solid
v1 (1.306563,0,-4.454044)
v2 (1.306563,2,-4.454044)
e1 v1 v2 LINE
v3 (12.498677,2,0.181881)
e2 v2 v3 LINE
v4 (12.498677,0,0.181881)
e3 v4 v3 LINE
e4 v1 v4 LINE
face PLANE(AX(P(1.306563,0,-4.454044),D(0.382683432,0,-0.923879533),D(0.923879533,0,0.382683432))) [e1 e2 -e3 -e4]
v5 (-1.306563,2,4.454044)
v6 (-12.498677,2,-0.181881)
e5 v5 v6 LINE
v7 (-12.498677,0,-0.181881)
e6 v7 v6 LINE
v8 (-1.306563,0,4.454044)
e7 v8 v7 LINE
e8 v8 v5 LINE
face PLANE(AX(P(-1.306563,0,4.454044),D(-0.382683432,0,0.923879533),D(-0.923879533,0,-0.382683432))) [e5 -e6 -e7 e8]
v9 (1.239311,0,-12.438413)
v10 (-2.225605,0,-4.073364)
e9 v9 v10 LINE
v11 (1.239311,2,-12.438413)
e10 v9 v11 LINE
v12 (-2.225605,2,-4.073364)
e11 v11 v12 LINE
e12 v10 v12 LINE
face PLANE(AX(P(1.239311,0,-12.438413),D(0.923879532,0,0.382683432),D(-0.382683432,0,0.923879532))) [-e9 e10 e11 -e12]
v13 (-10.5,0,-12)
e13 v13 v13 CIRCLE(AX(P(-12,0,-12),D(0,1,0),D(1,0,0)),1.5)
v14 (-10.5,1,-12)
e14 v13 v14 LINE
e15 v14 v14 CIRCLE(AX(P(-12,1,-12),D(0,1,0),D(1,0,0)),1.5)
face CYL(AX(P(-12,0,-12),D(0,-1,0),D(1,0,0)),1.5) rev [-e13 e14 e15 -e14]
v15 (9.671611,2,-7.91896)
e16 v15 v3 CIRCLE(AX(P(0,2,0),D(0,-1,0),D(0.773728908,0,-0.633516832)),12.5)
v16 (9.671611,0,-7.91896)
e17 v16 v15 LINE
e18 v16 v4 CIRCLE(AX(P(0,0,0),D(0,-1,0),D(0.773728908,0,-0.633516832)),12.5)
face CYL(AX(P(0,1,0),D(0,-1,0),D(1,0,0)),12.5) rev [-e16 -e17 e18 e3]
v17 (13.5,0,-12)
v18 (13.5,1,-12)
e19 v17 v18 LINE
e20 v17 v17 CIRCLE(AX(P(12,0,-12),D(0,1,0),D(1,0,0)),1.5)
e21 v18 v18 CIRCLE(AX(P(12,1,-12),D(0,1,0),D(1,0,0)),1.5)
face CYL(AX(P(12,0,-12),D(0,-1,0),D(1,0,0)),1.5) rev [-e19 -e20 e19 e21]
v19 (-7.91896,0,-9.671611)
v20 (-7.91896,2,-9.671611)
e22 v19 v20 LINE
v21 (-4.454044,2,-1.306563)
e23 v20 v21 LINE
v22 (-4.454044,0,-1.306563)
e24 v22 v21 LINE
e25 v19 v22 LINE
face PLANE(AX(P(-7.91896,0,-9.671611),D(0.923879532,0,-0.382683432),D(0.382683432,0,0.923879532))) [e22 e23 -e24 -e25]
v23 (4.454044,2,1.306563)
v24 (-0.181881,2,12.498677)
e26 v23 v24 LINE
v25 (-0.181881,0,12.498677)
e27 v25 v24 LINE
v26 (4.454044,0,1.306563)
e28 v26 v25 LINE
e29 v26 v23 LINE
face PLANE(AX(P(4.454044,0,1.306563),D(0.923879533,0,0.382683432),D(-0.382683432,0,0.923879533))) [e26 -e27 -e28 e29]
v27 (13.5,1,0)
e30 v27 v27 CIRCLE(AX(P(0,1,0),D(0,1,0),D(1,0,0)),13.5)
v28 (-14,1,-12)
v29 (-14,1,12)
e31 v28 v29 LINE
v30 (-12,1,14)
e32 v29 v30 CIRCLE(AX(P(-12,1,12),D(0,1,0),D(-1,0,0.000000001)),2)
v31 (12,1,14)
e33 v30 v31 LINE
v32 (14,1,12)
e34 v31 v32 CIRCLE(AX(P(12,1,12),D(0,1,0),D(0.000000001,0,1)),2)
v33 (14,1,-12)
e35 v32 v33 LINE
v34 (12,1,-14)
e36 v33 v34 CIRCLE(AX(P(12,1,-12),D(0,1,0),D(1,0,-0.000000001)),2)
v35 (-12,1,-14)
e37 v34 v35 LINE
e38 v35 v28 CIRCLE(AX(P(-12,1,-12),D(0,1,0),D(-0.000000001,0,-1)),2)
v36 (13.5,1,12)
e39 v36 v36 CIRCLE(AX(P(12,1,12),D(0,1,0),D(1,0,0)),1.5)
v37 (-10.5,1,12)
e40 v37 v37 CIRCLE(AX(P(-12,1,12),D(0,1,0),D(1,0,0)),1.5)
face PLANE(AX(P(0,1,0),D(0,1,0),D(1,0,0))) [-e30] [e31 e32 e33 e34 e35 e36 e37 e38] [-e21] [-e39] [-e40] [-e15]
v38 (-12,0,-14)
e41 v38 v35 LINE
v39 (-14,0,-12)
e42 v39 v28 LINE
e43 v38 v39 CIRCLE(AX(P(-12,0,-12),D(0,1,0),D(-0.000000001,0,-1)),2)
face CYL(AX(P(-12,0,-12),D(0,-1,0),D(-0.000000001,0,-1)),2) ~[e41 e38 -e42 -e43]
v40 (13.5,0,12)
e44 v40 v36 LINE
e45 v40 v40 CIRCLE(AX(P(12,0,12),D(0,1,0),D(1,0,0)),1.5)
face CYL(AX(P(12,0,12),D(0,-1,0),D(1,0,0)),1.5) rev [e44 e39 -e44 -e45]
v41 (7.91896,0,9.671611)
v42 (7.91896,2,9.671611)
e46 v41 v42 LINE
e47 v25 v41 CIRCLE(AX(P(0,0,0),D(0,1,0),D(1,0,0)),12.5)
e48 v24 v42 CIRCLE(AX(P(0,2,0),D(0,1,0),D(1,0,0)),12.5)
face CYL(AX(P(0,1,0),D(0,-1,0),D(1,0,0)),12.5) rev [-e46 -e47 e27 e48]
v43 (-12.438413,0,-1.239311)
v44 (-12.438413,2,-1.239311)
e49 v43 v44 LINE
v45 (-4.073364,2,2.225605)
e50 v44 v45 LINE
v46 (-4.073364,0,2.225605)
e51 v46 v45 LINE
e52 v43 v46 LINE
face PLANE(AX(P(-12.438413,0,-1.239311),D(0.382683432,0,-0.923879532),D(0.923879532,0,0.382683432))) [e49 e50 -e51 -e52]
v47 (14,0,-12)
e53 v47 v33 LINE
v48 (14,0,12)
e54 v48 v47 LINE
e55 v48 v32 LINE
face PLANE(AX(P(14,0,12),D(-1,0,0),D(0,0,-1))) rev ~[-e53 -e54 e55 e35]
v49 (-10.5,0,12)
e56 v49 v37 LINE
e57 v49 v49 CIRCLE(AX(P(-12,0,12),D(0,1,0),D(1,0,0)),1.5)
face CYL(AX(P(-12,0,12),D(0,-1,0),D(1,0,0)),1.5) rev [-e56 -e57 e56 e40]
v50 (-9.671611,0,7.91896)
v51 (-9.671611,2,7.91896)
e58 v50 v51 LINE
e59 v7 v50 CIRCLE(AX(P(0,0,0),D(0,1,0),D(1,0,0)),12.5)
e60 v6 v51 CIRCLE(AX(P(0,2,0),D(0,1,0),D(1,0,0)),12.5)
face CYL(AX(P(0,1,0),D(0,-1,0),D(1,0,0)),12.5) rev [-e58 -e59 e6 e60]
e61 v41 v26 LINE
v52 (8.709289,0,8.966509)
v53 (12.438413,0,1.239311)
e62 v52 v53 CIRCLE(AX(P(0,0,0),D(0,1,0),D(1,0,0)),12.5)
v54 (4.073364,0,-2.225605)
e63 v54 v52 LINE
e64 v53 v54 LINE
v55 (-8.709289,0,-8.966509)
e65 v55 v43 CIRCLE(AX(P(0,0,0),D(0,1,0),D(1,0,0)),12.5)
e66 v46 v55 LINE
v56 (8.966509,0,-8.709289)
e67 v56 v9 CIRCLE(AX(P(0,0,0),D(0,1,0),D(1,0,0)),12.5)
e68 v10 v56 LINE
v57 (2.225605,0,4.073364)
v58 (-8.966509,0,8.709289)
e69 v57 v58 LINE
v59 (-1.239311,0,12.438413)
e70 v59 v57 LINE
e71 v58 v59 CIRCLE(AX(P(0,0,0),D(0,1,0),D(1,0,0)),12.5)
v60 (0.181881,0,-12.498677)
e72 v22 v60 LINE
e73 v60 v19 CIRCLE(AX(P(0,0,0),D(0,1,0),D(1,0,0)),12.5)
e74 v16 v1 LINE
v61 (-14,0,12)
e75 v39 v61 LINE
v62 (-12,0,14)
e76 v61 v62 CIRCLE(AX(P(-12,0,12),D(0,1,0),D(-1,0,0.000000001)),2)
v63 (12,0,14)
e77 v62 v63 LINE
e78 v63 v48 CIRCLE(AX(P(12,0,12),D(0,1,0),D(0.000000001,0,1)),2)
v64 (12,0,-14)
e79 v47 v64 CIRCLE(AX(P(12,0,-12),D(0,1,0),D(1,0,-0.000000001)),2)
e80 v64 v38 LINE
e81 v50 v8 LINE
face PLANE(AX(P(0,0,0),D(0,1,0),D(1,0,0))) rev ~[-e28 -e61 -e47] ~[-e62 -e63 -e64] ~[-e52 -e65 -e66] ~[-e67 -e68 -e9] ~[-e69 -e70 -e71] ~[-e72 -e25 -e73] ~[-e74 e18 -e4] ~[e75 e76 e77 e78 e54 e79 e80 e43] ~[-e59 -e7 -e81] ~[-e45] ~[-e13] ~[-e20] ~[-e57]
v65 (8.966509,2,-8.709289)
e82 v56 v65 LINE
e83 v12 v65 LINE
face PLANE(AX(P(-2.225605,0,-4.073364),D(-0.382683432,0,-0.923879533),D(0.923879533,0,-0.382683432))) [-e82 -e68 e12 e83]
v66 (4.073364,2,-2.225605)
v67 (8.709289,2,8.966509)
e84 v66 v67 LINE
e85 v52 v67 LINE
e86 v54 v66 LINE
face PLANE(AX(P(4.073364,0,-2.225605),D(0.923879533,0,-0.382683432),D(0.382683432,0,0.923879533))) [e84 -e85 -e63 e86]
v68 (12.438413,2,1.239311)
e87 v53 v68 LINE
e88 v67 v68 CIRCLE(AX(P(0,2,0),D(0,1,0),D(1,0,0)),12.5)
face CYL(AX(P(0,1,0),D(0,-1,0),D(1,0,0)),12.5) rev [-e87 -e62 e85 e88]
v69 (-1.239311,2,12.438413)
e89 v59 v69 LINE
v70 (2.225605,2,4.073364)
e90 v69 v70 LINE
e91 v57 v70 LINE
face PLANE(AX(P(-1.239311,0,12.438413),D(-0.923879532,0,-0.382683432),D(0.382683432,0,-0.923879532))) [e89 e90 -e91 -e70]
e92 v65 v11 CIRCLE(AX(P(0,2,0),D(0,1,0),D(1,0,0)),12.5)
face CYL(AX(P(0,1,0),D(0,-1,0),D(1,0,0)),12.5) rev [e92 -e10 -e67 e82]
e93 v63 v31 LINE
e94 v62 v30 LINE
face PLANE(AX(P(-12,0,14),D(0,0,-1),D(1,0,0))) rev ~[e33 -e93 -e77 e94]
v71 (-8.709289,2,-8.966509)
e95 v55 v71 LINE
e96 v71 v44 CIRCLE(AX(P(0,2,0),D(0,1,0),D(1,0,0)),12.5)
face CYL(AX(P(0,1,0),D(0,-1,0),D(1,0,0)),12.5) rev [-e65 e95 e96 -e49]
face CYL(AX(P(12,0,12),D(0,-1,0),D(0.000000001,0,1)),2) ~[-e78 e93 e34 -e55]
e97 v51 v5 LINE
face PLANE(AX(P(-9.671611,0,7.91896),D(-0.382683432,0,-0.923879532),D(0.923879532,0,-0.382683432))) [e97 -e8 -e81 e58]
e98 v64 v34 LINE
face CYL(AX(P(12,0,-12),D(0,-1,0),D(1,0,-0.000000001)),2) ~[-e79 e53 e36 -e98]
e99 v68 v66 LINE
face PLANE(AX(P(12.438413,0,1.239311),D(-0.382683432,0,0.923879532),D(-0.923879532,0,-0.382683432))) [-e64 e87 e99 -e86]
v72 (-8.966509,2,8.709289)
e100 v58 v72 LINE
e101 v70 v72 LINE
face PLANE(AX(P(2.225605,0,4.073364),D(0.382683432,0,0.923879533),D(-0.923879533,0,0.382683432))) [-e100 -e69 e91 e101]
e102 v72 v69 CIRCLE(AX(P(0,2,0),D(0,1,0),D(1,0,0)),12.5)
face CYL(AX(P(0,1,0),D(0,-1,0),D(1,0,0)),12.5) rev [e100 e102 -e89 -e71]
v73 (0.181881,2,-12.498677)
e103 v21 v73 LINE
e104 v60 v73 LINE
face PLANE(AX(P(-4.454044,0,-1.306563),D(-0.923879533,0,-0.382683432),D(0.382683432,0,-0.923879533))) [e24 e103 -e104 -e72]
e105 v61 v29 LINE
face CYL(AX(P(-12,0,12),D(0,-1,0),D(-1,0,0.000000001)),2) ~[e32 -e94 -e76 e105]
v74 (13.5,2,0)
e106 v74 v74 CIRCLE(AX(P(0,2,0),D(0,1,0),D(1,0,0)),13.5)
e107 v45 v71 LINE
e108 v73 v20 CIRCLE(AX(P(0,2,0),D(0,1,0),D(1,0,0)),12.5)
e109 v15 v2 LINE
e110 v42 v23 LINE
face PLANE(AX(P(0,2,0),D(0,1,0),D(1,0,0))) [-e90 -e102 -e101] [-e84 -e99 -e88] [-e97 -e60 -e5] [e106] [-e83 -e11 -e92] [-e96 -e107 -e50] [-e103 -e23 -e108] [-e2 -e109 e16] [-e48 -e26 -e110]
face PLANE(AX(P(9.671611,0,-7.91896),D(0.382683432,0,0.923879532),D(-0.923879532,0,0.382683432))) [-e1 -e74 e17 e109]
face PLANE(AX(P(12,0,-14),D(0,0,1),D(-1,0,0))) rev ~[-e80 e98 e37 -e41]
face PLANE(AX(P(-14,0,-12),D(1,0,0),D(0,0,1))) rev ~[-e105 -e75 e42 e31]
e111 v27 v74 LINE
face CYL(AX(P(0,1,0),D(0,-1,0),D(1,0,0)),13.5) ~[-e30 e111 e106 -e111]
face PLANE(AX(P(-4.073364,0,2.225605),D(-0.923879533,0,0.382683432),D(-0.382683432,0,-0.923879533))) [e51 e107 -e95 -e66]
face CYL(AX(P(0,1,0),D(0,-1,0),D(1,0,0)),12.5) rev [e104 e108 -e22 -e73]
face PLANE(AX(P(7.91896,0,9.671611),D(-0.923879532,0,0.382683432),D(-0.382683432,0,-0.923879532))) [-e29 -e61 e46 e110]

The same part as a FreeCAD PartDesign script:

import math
import FreeCAD as App
import Part
import Sketcher
Q = App.Units.Quantity

doc = App.newDocument("Part")
body = doc.addObject("PartDesign::Body", "Body")

# Sketch on XZ plane
sketch1 = doc.addObject("Sketcher::SketchObject", "Sketch")
body.addObject(sketch1)
sketch1.AttachmentSupport = (doc.XZ_Plane, [""])
sketch1.MapMode = "FlatFace"
sketch1.addGeometry(Part.LineSegment(App.Vector(-12, 14, 0), App.Vector(12, 14, 0)), False)
sketch1.addGeometry(Part.ArcOfCircle(Part.Circle(App.Vector(12, 12, 0), App.Vector(0, 0, 1), 2), math.radians(0), math.radians(90)), False)
sketch1.addGeometry(Part.LineSegment(App.Vector(14, 12, 0), App.Vector(14, -12, 0)), False)
sketch1.addGeometry(Part.ArcOfCircle(Part.Circle(App.Vector(12, -12, 0), App.Vector(0, 0, 1), 2), math.radians(-90), math.radians(0)), False)
sketch1.addGeometry(Part.LineSegment(App.Vector(12, -14, 0), App.Vector(-12, -14, 0)), False)
sketch1.addGeometry(Part.ArcOfCircle(Part.Circle(App.Vector(-12, -12, 0), App.Vector(0, 0, 1), 2), math.radians(-180), math.radians(-90)), False)
sketch1.addGeometry(Part.LineSegment(App.Vector(-14, -12, 0), App.Vector(-14, 12, 0)), False)
sketch1.addGeometry(Part.ArcOfCircle(Part.Circle(App.Vector(-12, 12, 0), App.Vector(0, 0, 1), 2), math.radians(90), math.radians(180)), False)
sketch1.addGeometry(Part.Circle(App.Vector(-12, 12, 0), App.Vector(0, 0, 1), 1.5), False)
sketch1.addGeometry(Part.Circle(App.Vector(12, 12, 0), App.Vector(0, 0, 1), 1.5), False)
sketch1.addGeometry(Part.Circle(App.Vector(-12, -12, 0), App.Vector(0, 0, 1), 1.5), False)
sketch1.addGeometry(Part.Circle(App.Vector(0, 0, 0), App.Vector(0, 0, 1), 12.5), False)
sketch1.addGeometry(Part.Circle(App.Vector(12, -12, 0), App.Vector(0, 0, 1), 1.5), False)
sketch1.addConstraint(Sketcher.Constraint("Tangent", 0, 2, 1, 2))
sketch1.addConstraint(Sketcher.Constraint("Tangent", 1, 1, 2, 1))
sketch1.addConstraint(Sketcher.Constraint("Tangent", 2, 2, 3, 2))
sketch1.addConstraint(Sketcher.Constraint("Tangent", 3, 1, 4, 1))
sketch1.addConstraint(Sketcher.Constraint("Tangent", 4, 2, 5, 2))
sketch1.addConstraint(Sketcher.Constraint("Tangent", 5, 1, 6, 1))
sketch1.addConstraint(Sketcher.Constraint("Tangent", 6, 2, 7, 2))
sketch1.addConstraint(Sketcher.Constraint("Tangent", 7, 1, 0, 1))
sketch1.addConstraint(Sketcher.Constraint("Horizontal", 0))
sketch1.addConstraint(Sketcher.Constraint("Vertical", 2))
sketch1.addConstraint(Sketcher.Constraint("Horizontal", 4))
sketch1.addConstraint(Sketcher.Constraint("Vertical", 6))
sketch1.addConstraint(Sketcher.Constraint("Coincident", 11, 3, -1, 1))
sketch1.addConstraint(Sketcher.Constraint("Coincident", 8, 3, 7, 3))
sketch1.addConstraint(Sketcher.Constraint("Coincident", 9, 3, 1, 3))
sketch1.addConstraint(Sketcher.Constraint("Coincident", 10, 3, 5, 3))
sketch1.addConstraint(Sketcher.Constraint("Coincident", 12, 3, 3, 3))
sketch1.addConstraint(Sketcher.Constraint("Equal", 1, 3))
sketch1.addConstraint(Sketcher.Constraint("Equal", 3, 5))
sketch1.addConstraint(Sketcher.Constraint("Equal", 5, 7))
sketch1.addConstraint(Sketcher.Constraint("Equal", 8, 9))
sketch1.addConstraint(Sketcher.Constraint("Equal", 9, 10))
sketch1.addConstraint(Sketcher.Constraint("Equal", 10, 12))
sketch1.addConstraint(Sketcher.Constraint("Symmetric", 1, 3, 5, 3, -1, 1))
sketch1.addConstraint(Sketcher.Constraint("Equal", 4, 2))
sketch1.addConstraint(Sketcher.Constraint("Diameter", 8, 3.0))
sketch1.addConstraint(Sketcher.Constraint("Diameter", 11, 25.0))
sketch1.addConstraint(Sketcher.Constraint("Radius", 1, 2.0))
sketch1.addConstraint(Sketcher.Constraint("DistanceX", 0, 1, 0, 2, 24.0))
pad1 = doc.addObject("PartDesign::Pad", "Pad")
body.addObject(pad1)
pad1.Profile = sketch1
pad1.Length = 1
pad1.Reversed = True

# Sketch on XZ plane
sketch2 = doc.addObject("Sketcher::SketchObject", "Sketch001")
body.addObject(sketch2)
sketch2.AttachmentSupport = (doc.XZ_Plane, [""])
sketch2.MapMode = "FlatFace"
sketch2.AttachmentOffset = App.Placement(App.Vector(0, 0, -1), App.Rotation())
sketch2.addGeometry(Part.Circle(App.Vector(0, 0, 0), App.Vector(0, 0, 1), 14), False)
sketch2.addGeometry(Part.Circle(App.Vector(0, 0, 0), App.Vector(0, 0, 1), 12), False)
sketch2.addConstraint(Sketcher.Constraint("Coincident", 0, 3, -1, 1))
sketch2.addConstraint(Sketcher.Constraint("Coincident", 1, 3, -1, 1))
sketch2.addConstraint(Sketcher.Constraint("Diameter", 0, 27.0))
sketch2.addConstraint(Sketcher.Constraint("Diameter", 1, 25.0))
pad2 = doc.addObject("PartDesign::Pad", "Pad001")
body.addObject(pad2)
pad2.Profile = sketch2
pad2.Length = 1
pad2.Reversed = True

# Sketch on XZ plane
sketch3 = doc.addObject("Sketcher::SketchObject", "Sketch002")
body.addObject(sketch3)
sketch3.AttachmentSupport = (doc.XZ_Plane, [""])
sketch3.MapMode = "FlatFace"
sketch3.addGeometry(Part.LineSegment(App.Vector(0.2, -12.5, 0), App.Vector(-4.5, -1.3, 0)), False)
sketch3.addGeometry(Part.LineSegment(App.Vector(-4.5, -1.3, 0), App.Vector(-7.9, -9.7, 0)), False)
sketch3.addGeometry(Part.ArcOfCircle(Part.Circle(App.Vector(0, 0, 0), App.Vector(0, 0, 1), 12.5), math.radians(-134.17), math.radians(-129.31)), False)
sketch3.addGeometry(Part.LineSegment(App.Vector(-8.7, -9, 0), App.Vector(-4.1, 2.2, 0)), False)
sketch3.addGeometry(Part.LineSegment(App.Vector(-4.1, 2.2, 0), App.Vector(-12.4, -1.2, 0)), False)
sketch3.addGeometry(Part.ArcOfCircle(Part.Circle(App.Vector(0, 0, 0), App.Vector(0, 0, 1), 12.5), math.radians(-179.17), math.radians(-174.31)), False)
sketch3.addGeometry(Part.LineSegment(App.Vector(-12.5, -0.2, 0), App.Vector(-1.3, 4.5, 0)), False)
sketch3.addGeometry(Part.LineSegment(App.Vector(-1.3, 4.5, 0), App.Vector(-9.7, 7.9, 0)), False)
sketch3.addGeometry(Part.ArcOfCircle(Part.Circle(App.Vector(0, 0, 0), App.Vector(0, 0, 1), 12.5), math.radians(135.83), math.radians(140.69)), False)
sketch3.addGeometry(Part.LineSegment(App.Vector(-9, 8.7, 0), App.Vector(2.2, 4.1, 0)), False)
sketch3.addGeometry(Part.LineSegment(App.Vector(2.2, 4.1, 0), App.Vector(-1.2, 12.4, 0)), False)
sketch3.addGeometry(Part.ArcOfCircle(Part.Circle(App.Vector(0, 0, 0), App.Vector(0, 0, 1), 12.5), math.radians(90.83), math.radians(95.69)), False)
sketch3.addGeometry(Part.LineSegment(App.Vector(-0.2, 12.5, 0), App.Vector(4.5, 1.3, 0)), False)
sketch3.addGeometry(Part.LineSegment(App.Vector(4.5, 1.3, 0), App.Vector(7.9, 9.7, 0)), False)
sketch3.addGeometry(Part.ArcOfCircle(Part.Circle(App.Vector(0, 0, 0), App.Vector(0, 0, 1), 12.5), math.radians(45.83), math.radians(50.69)), False)
sketch3.addGeometry(Part.LineSegment(App.Vector(8.7, 9, 0), App.Vector(4.1, -2.2, 0)), False)
sketch3.addGeometry(Part.LineSegment(App.Vector(4.1, -2.2, 0), App.Vector(12.4, 1.2, 0)), False)
sketch3.addGeometry(Part.ArcOfCircle(Part.Circle(App.Vector(0, 0, 0), App.Vector(0, 0, 1), 12.5), math.radians(0.83), math.radians(5.69)), False)
sketch3.addGeometry(Part.LineSegment(App.Vector(12.5, 0.2, 0), App.Vector(1.3, -4.5, 0)), False)
sketch3.addGeometry(Part.LineSegment(App.Vector(1.3, -4.5, 0), App.Vector(9.7, -7.9, 0)), False)
sketch3.addGeometry(Part.ArcOfCircle(Part.Circle(App.Vector(0, 0, 0), App.Vector(0, 0, 1), 12.5), math.radians(-44.17), math.radians(-39.31)), False)
sketch3.addGeometry(Part.LineSegment(App.Vector(9, -8.7, 0), App.Vector(-2.2, -4.1, 0)), False)
sketch3.addGeometry(Part.LineSegment(App.Vector(-2.2, -4.1, 0), App.Vector(1.2, -12.4, 0)), False)
sketch3.addGeometry(Part.ArcOfCircle(Part.Circle(App.Vector(0, 0, 0), App.Vector(0, 0, 1), 12.5), math.radians(-89.17), math.radians(-84.31)), False)
sketch3.addConstraint(Sketcher.Constraint("Coincident", 0, 2, 1, 1))
sketch3.addConstraint(Sketcher.Constraint("Coincident", 1, 2, 2, 2))
sketch3.addConstraint(Sketcher.Constraint("Coincident", 2, 1, 3, 1))
sketch3.addConstraint(Sketcher.Constraint("Coincident", 3, 2, 4, 1))
sketch3.addConstraint(Sketcher.Constraint("Coincident", 4, 2, 5, 2))
sketch3.addConstraint(Sketcher.Constraint("Coincident", 5, 1, 6, 1))
sketch3.addConstraint(Sketcher.Constraint("Coincident", 6, 2, 7, 1))
sketch3.addConstraint(Sketcher.Constraint("Coincident", 7, 2, 8, 2))
sketch3.addConstraint(Sketcher.Constraint("Coincident", 8, 1, 9, 1))
sketch3.addConstraint(Sketcher.Constraint("Coincident", 9, 2, 10, 1))
sketch3.addConstraint(Sketcher.Constraint("Coincident", 10, 2, 11, 2))
sketch3.addConstraint(Sketcher.Constraint("Coincident", 11, 1, 12, 1))
sketch3.addConstraint(Sketcher.Constraint("Coincident", 12, 2, 13, 1))
sketch3.addConstraint(Sketcher.Constraint("Coincident", 13, 2, 14, 2))
sketch3.addConstraint(Sketcher.Constraint("Coincident", 14, 1, 15, 1))
sketch3.addConstraint(Sketcher.Constraint("Coincident", 15, 2, 16, 1))
sketch3.addConstraint(Sketcher.Constraint("Coincident", 16, 2, 17, 2))
sketch3.addConstraint(Sketcher.Constraint("Coincident", 17, 1, 18, 1))
sketch3.addConstraint(Sketcher.Constraint("Coincident", 18, 2, 19, 1))
sketch3.addConstraint(Sketcher.Constraint("Coincident", 19, 2, 20, 2))
sketch3.addConstraint(Sketcher.Constraint("Coincident", 20, 1, 21, 1))
sketch3.addConstraint(Sketcher.Constraint("Coincident", 21, 2, 22, 1))
sketch3.addConstraint(Sketcher.Constraint("Coincident", 22, 2, 23, 2))
sketch3.addConstraint(Sketcher.Constraint("Coincident", 23, 1, 0, 1))
sketch3.addConstraint(Sketcher.Constraint("Coincident", 2, 3, -1, 1))
sketch3.addConstraint(Sketcher.Constraint("Coincident", 5, 3, -1, 1))
sketch3.addConstraint(Sketcher.Constraint("Coincident", 8, 3, -1, 1))
sketch3.addConstraint(Sketcher.Constraint("Coincident", 11, 3, -1, 1))
sketch3.addConstraint(Sketcher.Constraint("Coincident", 14, 3, -1, 1))
sketch3.addConstraint(Sketcher.Constraint("Coincident", 17, 3, -1, 1))
sketch3.addConstraint(Sketcher.Constraint("Coincident", 20, 3, -1, 1))
sketch3.addConstraint(Sketcher.Constraint("Coincident", 23, 3, -1, 1))
sketch3.addConstraint(Sketcher.Constraint("Equal", 2, 5))
sketch3.addConstraint(Sketcher.Constraint("Equal", 5, 8))
sketch3.addConstraint(Sketcher.Constraint("Equal", 8, 11))
sketch3.addConstraint(Sketcher.Constraint("Equal", 11, 14))
sketch3.addConstraint(Sketcher.Constraint("Equal", 14, 17))
sketch3.addConstraint(Sketcher.Constraint("Equal", 17, 20))
sketch3.addConstraint(Sketcher.Constraint("Equal", 20, 23))
sketch3.addConstraint(Sketcher.Constraint("Symmetric", 0, 2, 12, 2, -1, 1))
sketch3.addConstraint(Sketcher.Constraint("Symmetric", 3, 2, 15, 2, -1, 1))
sketch3.addConstraint(Sketcher.Constraint("Symmetric", 6, 2, 18, 2, -1, 1))
sketch3.addConstraint(Sketcher.Constraint("Symmetric", 9, 2, 21, 2, -1, 1))
sketch3.addConstraint(Sketcher.Constraint("Parallel", 1, 3))
sketch3.addConstraint(Sketcher.Constraint("Perpendicular", 0, 4))
sketch3.addConstraint(Sketcher.Constraint("Parallel", 4, 6))
sketch3.addConstraint(Sketcher.Constraint("Perpendicular", 3, 7))
sketch3.addConstraint(Sketcher.Constraint("Parallel", 7, 9))
sketch3.addConstraint(Sketcher.Constraint("Perpendicular", 6, 10))
sketch3.addConstraint(Sketcher.Constraint("Parallel", 10, 12))
sketch3.addConstraint(Sketcher.Constraint("Perpendicular", 9, 13))
sketch3.addConstraint(Sketcher.Constraint("Parallel", 13, 15))
sketch3.addConstraint(Sketcher.Constraint("Perpendicular", 12, 16))
sketch3.addConstraint(Sketcher.Constraint("Parallel", 16, 18))
sketch3.addConstraint(Sketcher.Constraint("Perpendicular", 15, 19))
sketch3.addConstraint(Sketcher.Constraint("Parallel", 19, 21))
sketch3.addConstraint(Sketcher.Constraint("Perpendicular", 18, 22))
sketch3.addConstraint(Sketcher.Constraint("Equal", 0, 3))
sketch3.addConstraint(Sketcher.Constraint("Equal", 1, 4))
sketch3.addConstraint(Sketcher.Constraint("Equal", 3, 6))
sketch3.addConstraint(Sketcher.Constraint("Equal", 4, 7))
sketch3.addConstraint(Sketcher.Constraint("Equal", 6, 9))
sketch3.addConstraint(Sketcher.Constraint("Equal", 7, 10))
sketch3.addConstraint(Sketcher.Constraint("Radius", 2, 12.5))
sketch3.addConstraint(Sketcher.Constraint("Angle", 0, Q("112.5 deg")))
sketch3.addConstraint(Sketcher.Constraint("Angle", 1, Q("-112.5 deg")))
sketch3.addConstraint(Sketcher.Constraint("DistanceY", 1, 2, 4, 2, 8.4323))
sketch3.addConstraint(Sketcher.Constraint("DistanceY", 4, 2, 8, 1, 9.948601))
pad3 = doc.addObject("PartDesign::Pad", "Pad002")
body.addObject(pad3)
pad3.Profile = sketch3
pad3.Length = 2
pad3.Reversed = True

doc.recompute()
